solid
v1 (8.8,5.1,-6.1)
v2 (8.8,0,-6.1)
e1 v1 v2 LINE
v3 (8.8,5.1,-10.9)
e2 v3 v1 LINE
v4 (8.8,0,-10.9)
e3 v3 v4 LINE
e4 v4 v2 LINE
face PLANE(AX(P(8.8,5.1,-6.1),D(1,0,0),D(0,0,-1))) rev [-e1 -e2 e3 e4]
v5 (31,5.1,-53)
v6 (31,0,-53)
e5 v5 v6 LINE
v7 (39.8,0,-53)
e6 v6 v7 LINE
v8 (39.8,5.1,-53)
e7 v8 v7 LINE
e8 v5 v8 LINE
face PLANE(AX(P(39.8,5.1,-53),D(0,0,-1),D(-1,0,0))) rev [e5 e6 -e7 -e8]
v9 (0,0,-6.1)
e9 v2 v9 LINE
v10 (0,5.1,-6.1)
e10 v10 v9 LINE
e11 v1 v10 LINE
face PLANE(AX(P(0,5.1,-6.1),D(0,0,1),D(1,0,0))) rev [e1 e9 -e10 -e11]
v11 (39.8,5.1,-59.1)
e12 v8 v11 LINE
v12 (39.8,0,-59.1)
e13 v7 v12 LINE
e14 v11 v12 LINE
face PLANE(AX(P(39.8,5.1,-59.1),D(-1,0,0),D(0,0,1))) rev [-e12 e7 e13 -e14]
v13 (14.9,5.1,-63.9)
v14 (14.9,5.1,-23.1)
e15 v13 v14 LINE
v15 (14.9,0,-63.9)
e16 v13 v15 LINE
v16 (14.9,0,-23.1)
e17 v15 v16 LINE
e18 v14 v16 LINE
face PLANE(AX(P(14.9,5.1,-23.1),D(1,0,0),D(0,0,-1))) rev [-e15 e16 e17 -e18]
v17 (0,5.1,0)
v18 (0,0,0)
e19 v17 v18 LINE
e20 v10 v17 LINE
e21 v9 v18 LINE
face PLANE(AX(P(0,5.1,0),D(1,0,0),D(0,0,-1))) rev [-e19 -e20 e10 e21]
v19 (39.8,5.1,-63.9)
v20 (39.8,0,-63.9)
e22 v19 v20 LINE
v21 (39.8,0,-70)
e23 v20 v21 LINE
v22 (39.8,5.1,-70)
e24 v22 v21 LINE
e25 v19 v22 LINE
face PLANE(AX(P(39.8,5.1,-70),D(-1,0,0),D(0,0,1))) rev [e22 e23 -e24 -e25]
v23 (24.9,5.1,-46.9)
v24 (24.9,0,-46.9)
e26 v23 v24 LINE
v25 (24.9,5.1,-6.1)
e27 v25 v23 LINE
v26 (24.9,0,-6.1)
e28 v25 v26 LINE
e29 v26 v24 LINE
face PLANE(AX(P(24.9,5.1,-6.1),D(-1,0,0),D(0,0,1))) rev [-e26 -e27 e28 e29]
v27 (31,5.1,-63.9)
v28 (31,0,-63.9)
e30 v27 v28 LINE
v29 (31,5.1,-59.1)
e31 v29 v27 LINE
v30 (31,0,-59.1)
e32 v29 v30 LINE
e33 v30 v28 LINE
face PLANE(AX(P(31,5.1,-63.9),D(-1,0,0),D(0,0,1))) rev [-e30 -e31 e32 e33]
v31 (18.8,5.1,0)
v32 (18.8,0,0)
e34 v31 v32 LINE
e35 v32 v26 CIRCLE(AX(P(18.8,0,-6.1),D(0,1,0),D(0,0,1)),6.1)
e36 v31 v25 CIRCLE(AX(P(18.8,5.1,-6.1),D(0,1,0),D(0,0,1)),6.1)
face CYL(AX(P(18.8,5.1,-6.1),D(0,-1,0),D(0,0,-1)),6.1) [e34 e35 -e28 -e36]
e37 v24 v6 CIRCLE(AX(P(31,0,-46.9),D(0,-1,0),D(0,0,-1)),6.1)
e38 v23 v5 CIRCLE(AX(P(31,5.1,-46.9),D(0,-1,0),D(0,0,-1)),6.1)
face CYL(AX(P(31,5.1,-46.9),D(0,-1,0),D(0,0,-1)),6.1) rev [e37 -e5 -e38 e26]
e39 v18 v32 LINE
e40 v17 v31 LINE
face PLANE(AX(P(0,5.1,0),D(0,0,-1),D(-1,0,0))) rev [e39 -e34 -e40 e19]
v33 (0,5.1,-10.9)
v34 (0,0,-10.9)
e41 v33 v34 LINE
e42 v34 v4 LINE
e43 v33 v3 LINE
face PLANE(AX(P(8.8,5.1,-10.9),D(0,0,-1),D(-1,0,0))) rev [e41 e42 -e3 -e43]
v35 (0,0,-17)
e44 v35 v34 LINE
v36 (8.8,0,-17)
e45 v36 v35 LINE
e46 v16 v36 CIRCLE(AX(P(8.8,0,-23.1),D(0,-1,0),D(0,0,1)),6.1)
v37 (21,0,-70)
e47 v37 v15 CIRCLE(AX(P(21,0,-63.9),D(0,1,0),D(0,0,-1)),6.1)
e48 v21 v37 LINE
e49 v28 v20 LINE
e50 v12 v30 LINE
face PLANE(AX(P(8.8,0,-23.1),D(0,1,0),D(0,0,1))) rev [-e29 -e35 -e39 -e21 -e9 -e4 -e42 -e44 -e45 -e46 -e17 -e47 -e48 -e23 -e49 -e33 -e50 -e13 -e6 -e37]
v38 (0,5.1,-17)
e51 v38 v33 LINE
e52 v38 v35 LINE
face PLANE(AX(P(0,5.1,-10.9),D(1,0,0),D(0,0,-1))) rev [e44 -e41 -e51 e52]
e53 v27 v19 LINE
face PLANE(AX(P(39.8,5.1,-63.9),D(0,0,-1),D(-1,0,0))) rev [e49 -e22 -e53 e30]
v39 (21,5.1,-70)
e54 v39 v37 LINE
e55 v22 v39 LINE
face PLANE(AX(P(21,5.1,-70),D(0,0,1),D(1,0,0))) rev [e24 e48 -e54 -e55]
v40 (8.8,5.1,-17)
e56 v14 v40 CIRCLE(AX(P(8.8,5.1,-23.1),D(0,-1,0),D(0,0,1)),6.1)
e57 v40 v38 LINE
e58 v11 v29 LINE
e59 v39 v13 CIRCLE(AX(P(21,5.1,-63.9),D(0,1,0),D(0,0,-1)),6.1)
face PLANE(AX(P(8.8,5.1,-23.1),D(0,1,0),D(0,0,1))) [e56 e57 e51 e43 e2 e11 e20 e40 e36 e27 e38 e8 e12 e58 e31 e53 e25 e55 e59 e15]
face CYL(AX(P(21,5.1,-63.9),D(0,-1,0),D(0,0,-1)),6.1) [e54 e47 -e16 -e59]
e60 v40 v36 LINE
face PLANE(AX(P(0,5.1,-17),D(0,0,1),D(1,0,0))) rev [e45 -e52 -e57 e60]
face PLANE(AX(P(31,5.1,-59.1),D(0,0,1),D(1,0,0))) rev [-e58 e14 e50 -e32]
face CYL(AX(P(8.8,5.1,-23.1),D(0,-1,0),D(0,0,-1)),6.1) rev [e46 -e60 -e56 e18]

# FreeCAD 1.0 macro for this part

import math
import FreeCAD as App
import Part
import Sketcher

V = App.Vector

doc = App.newDocument("Part")
body = doc.addObject("PartDesign::Body", "Body")

sketch1 = body.newObject("Sketcher::SketchObject", "Sketch")
sketch1.AttachmentSupport = (doc.getObject("XZ_Plane"), [""])
sketch1.MapMode = "FlatFace"
sketch1.addGeometry(Part.LineSegment(V(0, 0, 0), V(18.8, 0, 0)), False)
sketch1.addGeometry(Part.ArcOfCircle(Part.Circle(V(18.8, -6.1, 0), V(0, 0, 1), 6.1), math.radians(0), math.radians(90)), False)
sketch1.addGeometry(Part.LineSegment(V(24.9, -6.1, 0), V(24.9, -46.9, 0)), False)
sketch1.addGeometry(Part.ArcOfCircle(Part.Circle(V(31, -46.9, 0), V(0, 0, 1), 6.1), math.radians(-180), math.radians(-90)), False)
sketch1.addGeometry(Part.LineSegment(V(31, -53, 0), V(39.8, -53, 0)), False)
sketch1.addGeometry(Part.LineSegment(V(39.8, -53, 0), V(39.8, -59.1, 0)), False)
sketch1.addGeometry(Part.LineSegment(V(39.8, -59.1, 0), V(31, -59.1, 0)), False)
sketch1.addGeometry(Part.LineSegment(V(31, -59.1, 0), V(31, -63.9, 0)), False)
sketch1.addGeometry(Part.LineSegment(V(31, -63.9, 0), V(39.8, -63.9, 0)), False)
sketch1.addGeometry(Part.LineSegment(V(39.8, -63.9, 0), V(39.8, -70, 0)), False)
sketch1.addGeometry(Part.LineSegment(V(39.8, -70, 0), V(21, -70, 0)), False)
sketch1.addGeometry(Part.ArcOfCircle(Part.Circle(V(21, -63.9, 0), V(0, 0, 1), 6.1), math.radians(-180), math.radians(-90)), False)
sketch1.addGeometry(Part.LineSegment(V(14.9, -63.9, 0), V(14.9, -23.1, 0)), False)
sketch1.addGeometry(Part.ArcOfCircle(Part.Circle(V(8.8, -23.1, 0), V(0, 0, 1), 6.1), math.radians(0), math.radians(90)), False)
sketch1.addGeometry(Part.LineSegment(V(8.8, -17, 0), V(0, -17, 0)), False)
sketch1.addGeometry(Part.LineSegment(V(0, -17, 0), V(0, -10.9, 0)), False)
sketch1.addGeometry(Part.LineSegment(V(0, -10.9, 0), V(8.8, -10.9, 0)), False)
sketch1.addGeometry(Part.LineSegment(V(8.8, -10.9, 0), V(8.8, -6.1, 0)), False)
sketch1.addGeometry(Part.LineSegment(V(8.8, -6.1, 0), V(0, -6.1, 0)), False)
sketch1.addGeometry(Part.LineSegment(V(0, -6.1, 0), V(0, 0, 0)), False)
sketch1.addConstraint(Sketcher.Constraint("Tangent", 0, 2, 1, 2))
sketch1.addConstraint(Sketcher.Constraint("Tangent", 1, 1, 2, 1))
sketch1.addConstraint(Sketcher.Constraint("Tangent", 2, 2, 3, 1))
sketch1.addConstraint(Sketcher.Constraint("Tangent", 3, 2, 4, 1))
sketch1.addConstraint(Sketcher.Constraint("Coincident", 4, 2, 5, 1))
sketch1.addConstraint(Sketcher.Constraint("Coincident", 5, 2, 6, 1))
sketch1.addConstraint(Sketcher.Constraint("Coincident", 6, 2, 7, 1))
sketch1.addConstraint(Sketcher.Constraint("Coincident", 7, 2, 8, 1))
sketch1.addConstraint(Sketcher.Constraint("Coincident", 8, 2, 9, 1))
sketch1.addConstraint(Sketcher.Constraint("Coincident", 9, 2, 10, 1))
sketch1.addConstraint(Sketcher.Constraint("Tangent", 10, 2, 11, 2))
sketch1.addConstraint(Sketcher.Constraint("Tangent", 11, 1, 12, 1))
sketch1.addConstraint(Sketcher.Constraint("Tangent", 12, 2, 13, 1))
sketch1.addConstraint(Sketcher.Constraint("Tangent", 13, 2, 14, 1))
sketch1.addConstraint(Sketcher.Constraint("Coincident", 14, 2, 15, 1))
sketch1.addConstraint(Sketcher.Constraint("Coincident", 15, 2, 16, 1))
sketch1.addConstraint(Sketcher.Constraint("Coincident", 16, 2, 17, 1))
sketch1.addConstraint(Sketcher.Constraint("Coincident", 17, 2, 18, 1))
sketch1.addConstraint(Sketcher.Constraint("Coincident", 18, 2, 19, 1))
sketch1.addConstraint(Sketcher.Constraint("Coincident", 19, 2, 0, 1))
sketch1.addConstraint(Sketcher.Constraint("Horizontal", 0))
sketch1.addConstraint(Sketcher.Constraint("Vertical", 2))
sketch1.addConstraint(Sketcher.Constraint("Horizontal", 4))
sketch1.addConstraint(Sketcher.Constraint("Vertical", 5))
sketch1.addConstraint(Sketcher.Constraint("Horizontal", 6))
sketch1.addConstraint(Sketcher.Constraint("Vertical", 7))
sketch1.addConstraint(Sketcher.Constraint("Horizontal", 8))
sketch1.addConstraint(Sketcher.Constraint("Vertical", 9))
sketch1.addConstraint(Sketcher.Constraint("Horizontal", 10))
sketch1.addConstraint(Sketcher.Constraint("Vertical", 12))
sketch1.addConstraint(Sketcher.Constraint("Horizontal", 14))
sketch1.addConstraint(Sketcher.Constraint("Vertical", 15))
sketch1.addConstraint(Sketcher.Constraint("Horizontal", 16))
sketch1.addConstraint(Sketcher.Constraint("Vertical", 17))
sketch1.addConstraint(Sketcher.Constraint("Horizontal", 18))
sketch1.addConstraint(Sketcher.Constraint("Vertical", 19))
sketch1.addConstraint(Sketcher.Constraint("Coincident", 19, 2, -1, 1))
sketch1.addConstraint(Sketcher.Constraint("Equal", 1, 3))
sketch1.addConstraint(Sketcher.Constraint("Equal", 3, 11))
sketch1.addConstraint(Sketcher.Constraint("Equal", 11, 13))
sketch1.addConstraint(Sketcher.Constraint("PointOnObject", 14, 2, -2))
sketch1.addConstraint(Sketcher.Constraint("Horizontal", 11, 3, 7, 2))
sketch1.addConstraint(Sketcher.Constraint("Horizontal", 1, 1, 17, 2))
sketch1.addConstraint(Sketcher.Constraint("Vertical", 3, 2, 6, 2))
sketch1.addConstraint(Sketcher.Constraint("Vertical", 5, 2, 8, 2))
sketch1.addConstraint(Sketcher.Constraint("Vertical", 13, 2, 16, 2))
sketch1.addConstraint(Sketcher.Constraint("Equal", 0, 10))
sketch1.addConstraint(Sketcher.Constraint("Equal", 5, 9))
sketch1.addConstraint(Sketcher.Constraint("Equal", 2, 12))
sketch1.addConstraint(Sketcher.Constraint("Equal", 9, 15))
sketch1.addConstraint(Sketcher.Constraint("Radius", 1, 6.1))
sketch1.addConstraint(Sketcher.Constraint("DistanceX", 0, 1, 0, 2, 18.8))
sketch1.addConstraint(Sketcher.Constraint("DistanceX", 4, 1, 4, 2, 8.8))
sketch1.addConstraint(Sketcher.Constraint("DistanceY", 2, 2, 2, 1, 40.8))
sketch1.addConstraint(Sketcher.Constraint("DistanceY", 7, 2, 7, 1, 4.8))
pad1 = body.newObject("PartDesign::Pad", "Pad")
pad1.Profile = sketch1
pad1.Length = 5.1
pad1.Reversed = True

doc.recompute()
